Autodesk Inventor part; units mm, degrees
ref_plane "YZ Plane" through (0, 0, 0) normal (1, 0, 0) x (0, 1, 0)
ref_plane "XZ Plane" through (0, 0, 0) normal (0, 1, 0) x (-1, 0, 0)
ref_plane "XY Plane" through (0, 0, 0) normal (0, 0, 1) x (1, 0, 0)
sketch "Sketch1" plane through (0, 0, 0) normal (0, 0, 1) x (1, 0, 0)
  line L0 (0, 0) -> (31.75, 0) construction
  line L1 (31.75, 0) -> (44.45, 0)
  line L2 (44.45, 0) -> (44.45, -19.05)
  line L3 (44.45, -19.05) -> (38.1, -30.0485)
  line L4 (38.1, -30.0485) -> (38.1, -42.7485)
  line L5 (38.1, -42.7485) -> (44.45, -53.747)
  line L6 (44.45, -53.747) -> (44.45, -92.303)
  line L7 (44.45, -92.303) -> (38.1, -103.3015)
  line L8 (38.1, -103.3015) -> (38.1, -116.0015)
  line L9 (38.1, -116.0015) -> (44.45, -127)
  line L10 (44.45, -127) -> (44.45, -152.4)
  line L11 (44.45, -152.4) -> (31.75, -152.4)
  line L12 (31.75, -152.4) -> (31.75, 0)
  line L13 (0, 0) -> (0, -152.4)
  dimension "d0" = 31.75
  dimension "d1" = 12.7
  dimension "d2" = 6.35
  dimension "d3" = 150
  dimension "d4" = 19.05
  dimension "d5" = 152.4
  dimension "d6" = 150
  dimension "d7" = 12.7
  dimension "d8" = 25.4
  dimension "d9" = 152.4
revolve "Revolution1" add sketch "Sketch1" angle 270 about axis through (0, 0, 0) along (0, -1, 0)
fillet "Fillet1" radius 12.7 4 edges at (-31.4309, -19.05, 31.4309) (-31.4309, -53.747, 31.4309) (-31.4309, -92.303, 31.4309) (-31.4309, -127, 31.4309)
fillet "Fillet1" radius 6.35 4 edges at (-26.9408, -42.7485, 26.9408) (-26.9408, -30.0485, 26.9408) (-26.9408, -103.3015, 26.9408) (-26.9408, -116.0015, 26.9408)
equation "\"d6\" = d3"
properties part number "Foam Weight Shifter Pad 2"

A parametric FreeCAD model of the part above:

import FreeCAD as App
import Part
import Sketcher

V = App.Vector
Q = App.Units.Quantity


def edges_at(feature, points):
    """Names of the edges that pass closest to the given points."""
    edges = feature.Shape.Edges
    near = lambda p: min(range(len(edges)), key=lambda i: edges[i].distToShape(Part.Vertex(*p))[0])
    return sorted({f"Edge{near(p) + 1}" for p in points})

doc = App.newDocument("Part")
body = doc.addObject("PartDesign::Body", "Body")

sketch1 = body.newObject("Sketcher::SketchObject", "Sketch")
sketch1.AttachmentSupport = (doc.getObject("XY_Plane"), [""])
sketch1.MapMode = "FlatFace"
sketch1.addGeometry([
    Part.LineSegment(V(44, 0, 0), V(32, 0, 0)),
    Part.LineSegment(V(32, 0, 0), V(32, -152, 0)),
    Part.LineSegment(V(32, -152, 0), V(44, -152, 0)),
    Part.LineSegment(V(44, -152, 0), V(44, -127, 0)),
    Part.LineSegment(V(44, -127, 0), V(38, -116, 0)),
    Part.LineSegment(V(38, -116, 0), V(38, -103, 0)),
    Part.LineSegment(V(38, -103, 0), V(44, -92, 0)),
    Part.LineSegment(V(44, -92, 0), V(44, -54, 0)),
    Part.LineSegment(V(44, -54, 0), V(38, -43, 0)),
    Part.LineSegment(V(38, -43, 0), V(38, -30, 0)),
    Part.LineSegment(V(38, -30, 0), V(44, -19, 0)),
    Part.LineSegment(V(44, -19, 0), V(44, 0, 0)),
], False)
sketch1.addConstraint([
    Sketcher.Constraint("Coincident", 0, 2, 1, 1),
    Sketcher.Constraint("Coincident", 1, 2, 2, 1),
    Sketcher.Constraint("Coincident", 2, 2, 3, 1),
    Sketcher.Constraint("Coincident", 3, 2, 4, 1),
    Sketcher.Constraint("Coincident", 4, 2, 5, 1),
    Sketcher.Constraint("Coincident", 5, 2, 6, 1),
    Sketcher.Constraint("Coincident", 6, 2, 7, 1),
    Sketcher.Constraint("Coincident", 7, 2, 8, 1),
    Sketcher.Constraint("Coincident", 8, 2, 9, 1),
    Sketcher.Constraint("Coincident", 9, 2, 10, 1),
    Sketcher.Constraint("Coincident", 10, 2, 11, 1),
    Sketcher.Constraint("Coincident", 11, 2, 0, 1),
    Sketcher.Constraint("Horizontal", 0),
    Sketcher.Constraint("Vertical", 1),
    Sketcher.Constraint("Horizontal", 2),
    Sketcher.Constraint("Vertical", 3),
    Sketcher.Constraint("Vertical", 5),
    Sketcher.Constraint("Vertical", 7),
    Sketcher.Constraint("Vertical", 9),
    Sketcher.Constraint("Vertical", 11),
    Sketcher.Constraint("PointOnObject", 0, 2, -1),
    Sketcher.Constraint("Parallel", 4, 8),
    Sketcher.Constraint("Parallel", 6, 10),
    Sketcher.Constraint("Vertical", 3, 2, 6, 2),
    Sketcher.Constraint("Vertical", 5, 2, 8, 2),
    Sketcher.Constraint("Vertical", 7, 2, 10, 2),
    Sketcher.Constraint("Equal", 2, 5),
    Sketcher.Constraint("Equal", 5, 9),
    Sketcher.Constraint("Equal", 4, 6),
    Sketcher.Constraint("DistanceY", 1, 2, 1, 1, Q("6 in")),
    Sketcher.Constraint("DistanceY", 3, 1, 3, 2, Q("1 in")),
    Sketcher.Constraint("DistanceX", 0, 2, 0, 1, Q("0.5 in")),
    Sketcher.Constraint("Distance", 4, Q("0.5 in")),
    Sketcher.Constraint("DistanceY", 11, 1, 11, 2, Q("0.75 in")),
    Sketcher.Constraint("DistanceX", -1, 1, 0, 2, Q("1.25 in")),
    Sketcher.Constraint("DistanceX", 4, 2, 3, 2, Q("0.25 in")),
])
revolution = body.newObject("PartDesign::Revolution", "Revolution")
revolution.Profile = sketch1
revolution.ReferenceAxis = (sketch1, ["V_Axis"])
revolution.Angle = 270
revolution.Reversed = True
doc.recompute()

fillet = body.newObject("PartDesign::Fillet", "Fillet")
fillet.Base = (revolution, edges_at(revolution, [
    (-31.431, -19.05, 31.431),
    (-31.431, -53.747, 31.431),
    (-31.431, -92.303, 31.431),
    (-31.431, -127, 31.431),
]))
fillet.Radius = Q("0.5 in")
doc.recompute()

fillet2 = body.newObject("PartDesign::Fillet", "Fillet001")
fillet2.Base = (fillet, edges_at(fillet, [
    (-26.941, -42.748, 26.941),
    (-26.941, -30.049, 26.941),
    (-26.941, -103.302, 26.941),
    (-26.941, -116.001, 26.941),
]))
fillet2.Radius = Q("0.25 in")

doc.recompute()
